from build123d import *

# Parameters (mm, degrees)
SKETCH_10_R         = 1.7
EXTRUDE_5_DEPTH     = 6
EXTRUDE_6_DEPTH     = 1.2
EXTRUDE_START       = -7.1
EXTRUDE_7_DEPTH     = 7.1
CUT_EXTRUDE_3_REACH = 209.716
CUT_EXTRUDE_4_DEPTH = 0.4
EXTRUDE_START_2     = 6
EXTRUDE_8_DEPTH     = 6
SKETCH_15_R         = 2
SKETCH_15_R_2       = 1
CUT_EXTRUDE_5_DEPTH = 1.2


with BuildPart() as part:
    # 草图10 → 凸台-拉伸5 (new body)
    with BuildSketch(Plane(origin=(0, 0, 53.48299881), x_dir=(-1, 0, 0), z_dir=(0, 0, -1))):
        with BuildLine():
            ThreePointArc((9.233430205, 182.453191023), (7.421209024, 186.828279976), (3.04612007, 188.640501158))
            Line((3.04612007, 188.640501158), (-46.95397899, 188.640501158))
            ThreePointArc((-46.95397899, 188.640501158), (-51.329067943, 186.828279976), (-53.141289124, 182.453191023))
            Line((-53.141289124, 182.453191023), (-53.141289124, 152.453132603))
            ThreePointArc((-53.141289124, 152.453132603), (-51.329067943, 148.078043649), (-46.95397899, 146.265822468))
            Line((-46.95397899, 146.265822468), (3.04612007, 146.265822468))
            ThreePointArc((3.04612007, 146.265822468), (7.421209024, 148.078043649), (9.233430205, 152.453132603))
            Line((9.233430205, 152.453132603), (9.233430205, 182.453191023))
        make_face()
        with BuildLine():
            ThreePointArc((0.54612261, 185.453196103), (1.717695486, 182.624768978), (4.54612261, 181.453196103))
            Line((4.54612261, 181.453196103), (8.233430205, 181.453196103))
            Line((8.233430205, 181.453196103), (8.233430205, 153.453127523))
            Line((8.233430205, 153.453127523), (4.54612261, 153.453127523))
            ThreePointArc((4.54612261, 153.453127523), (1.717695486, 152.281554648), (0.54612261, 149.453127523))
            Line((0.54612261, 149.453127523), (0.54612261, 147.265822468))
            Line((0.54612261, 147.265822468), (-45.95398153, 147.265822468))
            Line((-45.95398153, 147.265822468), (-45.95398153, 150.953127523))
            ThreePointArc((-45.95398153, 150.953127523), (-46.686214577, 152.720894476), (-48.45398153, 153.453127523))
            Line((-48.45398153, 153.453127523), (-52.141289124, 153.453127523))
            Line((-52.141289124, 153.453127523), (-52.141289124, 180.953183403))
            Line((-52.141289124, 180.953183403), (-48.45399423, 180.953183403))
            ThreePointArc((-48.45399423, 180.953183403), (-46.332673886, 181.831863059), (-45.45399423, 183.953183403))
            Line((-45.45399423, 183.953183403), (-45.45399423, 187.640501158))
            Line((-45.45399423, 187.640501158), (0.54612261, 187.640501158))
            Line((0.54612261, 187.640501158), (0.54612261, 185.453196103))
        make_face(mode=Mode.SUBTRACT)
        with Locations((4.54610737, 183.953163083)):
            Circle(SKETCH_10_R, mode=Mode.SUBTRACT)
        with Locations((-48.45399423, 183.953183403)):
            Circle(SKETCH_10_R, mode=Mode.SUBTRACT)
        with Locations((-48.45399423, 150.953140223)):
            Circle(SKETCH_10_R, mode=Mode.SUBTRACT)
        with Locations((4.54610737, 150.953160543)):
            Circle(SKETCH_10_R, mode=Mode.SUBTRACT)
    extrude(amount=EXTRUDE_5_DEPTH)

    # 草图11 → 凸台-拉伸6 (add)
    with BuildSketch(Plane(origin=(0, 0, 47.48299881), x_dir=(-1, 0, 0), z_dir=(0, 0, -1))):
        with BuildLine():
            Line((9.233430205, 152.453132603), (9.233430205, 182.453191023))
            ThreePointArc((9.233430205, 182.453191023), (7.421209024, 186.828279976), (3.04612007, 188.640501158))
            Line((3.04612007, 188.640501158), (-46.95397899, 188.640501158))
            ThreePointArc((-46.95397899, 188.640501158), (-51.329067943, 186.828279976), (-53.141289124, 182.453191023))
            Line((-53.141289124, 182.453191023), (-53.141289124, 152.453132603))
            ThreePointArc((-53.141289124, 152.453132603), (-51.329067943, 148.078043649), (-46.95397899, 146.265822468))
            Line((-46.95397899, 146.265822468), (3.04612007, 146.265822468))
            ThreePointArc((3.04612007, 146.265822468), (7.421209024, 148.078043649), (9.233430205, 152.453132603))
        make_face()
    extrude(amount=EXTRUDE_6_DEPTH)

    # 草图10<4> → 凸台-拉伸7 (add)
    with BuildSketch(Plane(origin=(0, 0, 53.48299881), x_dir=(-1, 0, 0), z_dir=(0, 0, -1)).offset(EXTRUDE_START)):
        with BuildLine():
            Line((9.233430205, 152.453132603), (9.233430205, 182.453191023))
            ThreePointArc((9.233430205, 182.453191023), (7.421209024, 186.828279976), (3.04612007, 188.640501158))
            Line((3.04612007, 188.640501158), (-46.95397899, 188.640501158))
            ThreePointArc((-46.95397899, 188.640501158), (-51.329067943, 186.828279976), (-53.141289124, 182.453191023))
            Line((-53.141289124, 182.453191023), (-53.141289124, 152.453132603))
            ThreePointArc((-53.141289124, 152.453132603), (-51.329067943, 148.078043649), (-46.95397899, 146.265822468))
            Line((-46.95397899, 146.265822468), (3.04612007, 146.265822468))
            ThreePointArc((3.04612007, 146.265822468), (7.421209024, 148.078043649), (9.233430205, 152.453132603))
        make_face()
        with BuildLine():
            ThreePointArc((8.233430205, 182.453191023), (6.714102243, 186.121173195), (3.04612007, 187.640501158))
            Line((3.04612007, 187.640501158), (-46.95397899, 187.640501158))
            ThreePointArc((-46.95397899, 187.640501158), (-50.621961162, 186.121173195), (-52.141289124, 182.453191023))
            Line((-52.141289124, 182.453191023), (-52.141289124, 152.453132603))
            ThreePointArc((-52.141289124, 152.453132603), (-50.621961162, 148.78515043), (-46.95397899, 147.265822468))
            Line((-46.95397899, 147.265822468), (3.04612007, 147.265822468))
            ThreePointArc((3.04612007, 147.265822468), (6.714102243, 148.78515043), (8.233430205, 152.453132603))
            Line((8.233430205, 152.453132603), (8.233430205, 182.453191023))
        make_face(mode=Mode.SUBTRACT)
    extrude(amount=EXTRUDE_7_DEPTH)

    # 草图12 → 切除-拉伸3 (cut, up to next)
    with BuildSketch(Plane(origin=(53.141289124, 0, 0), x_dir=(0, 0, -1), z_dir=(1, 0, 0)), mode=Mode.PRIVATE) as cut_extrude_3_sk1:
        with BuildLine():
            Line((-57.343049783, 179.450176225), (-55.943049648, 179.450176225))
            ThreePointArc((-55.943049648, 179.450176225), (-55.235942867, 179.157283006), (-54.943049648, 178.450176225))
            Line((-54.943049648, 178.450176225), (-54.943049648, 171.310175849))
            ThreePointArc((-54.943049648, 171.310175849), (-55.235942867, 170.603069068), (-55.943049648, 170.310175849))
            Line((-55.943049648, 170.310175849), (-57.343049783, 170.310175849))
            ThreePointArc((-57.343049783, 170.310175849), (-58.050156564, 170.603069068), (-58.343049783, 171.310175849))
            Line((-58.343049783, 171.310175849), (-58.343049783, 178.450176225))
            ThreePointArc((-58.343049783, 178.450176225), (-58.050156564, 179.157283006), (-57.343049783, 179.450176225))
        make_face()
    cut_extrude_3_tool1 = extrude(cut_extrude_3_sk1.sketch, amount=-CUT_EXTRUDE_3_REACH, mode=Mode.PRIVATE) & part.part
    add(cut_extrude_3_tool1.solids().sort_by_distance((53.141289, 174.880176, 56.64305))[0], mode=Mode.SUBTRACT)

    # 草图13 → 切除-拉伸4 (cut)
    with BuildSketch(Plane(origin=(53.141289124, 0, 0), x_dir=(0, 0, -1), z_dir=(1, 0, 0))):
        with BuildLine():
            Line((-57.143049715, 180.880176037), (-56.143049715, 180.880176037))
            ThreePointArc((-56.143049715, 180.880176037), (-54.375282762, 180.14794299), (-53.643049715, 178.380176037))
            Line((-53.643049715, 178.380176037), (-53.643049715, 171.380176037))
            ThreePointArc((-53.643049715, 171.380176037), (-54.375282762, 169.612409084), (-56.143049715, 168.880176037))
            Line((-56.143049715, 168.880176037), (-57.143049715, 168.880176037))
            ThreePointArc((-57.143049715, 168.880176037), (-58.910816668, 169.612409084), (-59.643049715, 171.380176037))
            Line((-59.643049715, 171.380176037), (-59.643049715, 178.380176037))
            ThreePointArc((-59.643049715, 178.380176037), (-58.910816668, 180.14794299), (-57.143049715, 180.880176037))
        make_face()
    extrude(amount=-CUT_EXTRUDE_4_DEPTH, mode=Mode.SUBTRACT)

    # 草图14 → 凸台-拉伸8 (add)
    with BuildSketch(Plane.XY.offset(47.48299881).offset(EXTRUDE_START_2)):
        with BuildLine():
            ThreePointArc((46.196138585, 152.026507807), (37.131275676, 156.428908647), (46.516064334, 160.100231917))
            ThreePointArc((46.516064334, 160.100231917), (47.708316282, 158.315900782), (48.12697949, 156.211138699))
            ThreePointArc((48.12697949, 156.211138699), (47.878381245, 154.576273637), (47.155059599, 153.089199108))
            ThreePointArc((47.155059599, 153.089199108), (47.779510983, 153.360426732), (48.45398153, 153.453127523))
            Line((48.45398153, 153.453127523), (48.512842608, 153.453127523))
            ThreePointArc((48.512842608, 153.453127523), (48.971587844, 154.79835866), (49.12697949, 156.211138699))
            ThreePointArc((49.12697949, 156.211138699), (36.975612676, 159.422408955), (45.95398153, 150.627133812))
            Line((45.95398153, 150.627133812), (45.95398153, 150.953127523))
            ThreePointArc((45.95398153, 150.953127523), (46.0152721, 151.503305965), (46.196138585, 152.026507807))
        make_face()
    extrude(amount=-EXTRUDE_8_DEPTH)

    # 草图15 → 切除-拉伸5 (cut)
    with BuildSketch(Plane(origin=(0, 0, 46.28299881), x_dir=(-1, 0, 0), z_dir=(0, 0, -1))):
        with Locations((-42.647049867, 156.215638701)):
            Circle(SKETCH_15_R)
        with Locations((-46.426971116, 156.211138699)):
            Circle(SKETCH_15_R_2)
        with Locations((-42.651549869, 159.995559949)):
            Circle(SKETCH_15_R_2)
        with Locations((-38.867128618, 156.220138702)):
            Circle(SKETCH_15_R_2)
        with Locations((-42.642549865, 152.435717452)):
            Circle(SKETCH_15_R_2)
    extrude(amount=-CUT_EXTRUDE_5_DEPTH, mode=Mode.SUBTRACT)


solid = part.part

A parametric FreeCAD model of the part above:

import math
import FreeCAD as App
import Part
import Sketcher

doc = App.newDocument("Part")
body = doc.addObject("PartDesign::Body", "Body")

# Sketch on XY plane
sketch1 = body.newObject("Sketcher::SketchObject", "Sketch")
sketch1.AttachmentSupport = (doc.getObject("XY_Plane"), [""])
sketch1.MapMode = "FlatFace"
sketch1.AttachmentOffset = App.Placement(App.Vector(0, 0, 53.482999), App.Rotation())
sketch1.addGeometry(Part.ArcOfCircle(Part.Circle(App.Vector(-3, 182.5, 0), App.Vector(0, 0, 1), 6.2), math.radians(90), math.radians(180)), False)
sketch1.addGeometry(Part.LineSegment(App.Vector(-3, 188.6, 0), App.Vector(47, 188.6, 0)), False)
sketch1.addGeometry(Part.ArcOfCircle(Part.Circle(App.Vector(47, 182.5, 0), App.Vector(0, 0, 1), 6.2), math.radians(0), math.radians(90)), False)
sketch1.addGeometry(Part.LineSegment(App.Vector(53.1, 182.5, 0), App.Vector(53.1, 152.5, 0)), False)
sketch1.addGeometry(Part.ArcOfCircle(Part.Circle(App.Vector(47, 152.5, 0), App.Vector(0, 0, 1), 6.2), math.radians(-90), math.radians(0)), False)
sketch1.addGeometry(Part.LineSegment(App.Vector(47, 146.3, 0), App.Vector(-3, 146.3, 0)), False)
sketch1.addGeometry(Part.ArcOfCircle(Part.Circle(App.Vector(-3, 152.5, 0), App.Vector(0, 0, 1), 6.2), math.radians(180), math.radians(270)), False)
sketch1.addGeometry(Part.LineSegment(App.Vector(-9.2, 152.5, 0), App.Vector(-9.2, 182.5, 0)), False)
sketch1.addGeometry(Part.Circle(App.Vector(48.5, 151, 0), App.Vector(0, 0, 1), 1.7), False)
sketch1.addGeometry(Part.Circle(App.Vector(-4.5, 151, 0), App.Vector(0, 0, 1), 1.7), False)
sketch1.addGeometry(Part.Circle(App.Vector(48.5, 184, 0), App.Vector(0, 0, 1), 1.7), False)
sketch1.addGeometry(Part.LineSegment(App.Vector(-0.5, 187.6, 0), App.Vector(-0.5, 185.5, 0)), False)
sketch1.addGeometry(Part.ArcOfCircle(Part.Circle(App.Vector(-4.5, 185.5, 0), App.Vector(0, 0, 1), 4), math.radians(-90), math.radians(0)), False)
sketch1.addGeometry(Part.LineSegment(App.Vector(-4.5, 181.5, 0), App.Vector(-8.2, 181.5, 0)), False)
sketch1.addGeometry(Part.LineSegment(App.Vector(-8.2, 181.5, 0), App.Vector(-8.2, 153.5, 0)), False)
sketch1.addGeometry(Part.LineSegment(App.Vector(-8.2, 153.5, 0), App.Vector(-4.5, 153.5, 0)), False)
sketch1.addGeometry(Part.ArcOfCircle(Part.Circle(App.Vector(-4.5, 149.5, 0), App.Vector(0, 0, 1), 4), math.radians(0), math.radians(90)), False)
sketch1.addGeometry(Part.LineSegment(App.Vector(-0.5, 149.5, 0), App.Vector(-0.5, 147.3, 0)), False)
sketch1.addGeometry(Part.LineSegment(App.Vector(-0.5, 147.3, 0), App.Vector(46, 147.3, 0)), False)
sketch1.addGeometry(Part.LineSegment(App.Vector(46, 147.3, 0), App.Vector(46, 151, 0)), False)
sketch1.addGeometry(Part.ArcOfCircle(Part.Circle(App.Vector(48.5, 151, 0), App.Vector(0, 0, 1), 2.5), math.radians(90), math.radians(180)), False)
sketch1.addGeometry(Part.LineSegment(App.Vector(48.5, 153.5, 0), App.Vector(52.1, 153.5, 0)), False)
sketch1.addGeometry(Part.LineSegment(App.Vector(52.1, 153.5, 0), App.Vector(52.1, 181, 0)), False)
sketch1.addGeometry(Part.LineSegment(App.Vector(52.1, 181, 0), App.Vector(48.5, 181, 0)), False)
sketch1.addGeometry(Part.ArcOfCircle(Part.Circle(App.Vector(48.5, 184, 0), App.Vector(0, 0, 1), 3), math.radians(180), math.radians(270)), False)
sketch1.addGeometry(Part.LineSegment(App.Vector(45.5, 184, 0), App.Vector(45.5, 187.6, 0)), False)
sketch1.addGeometry(Part.LineSegment(App.Vector(45.5, 187.6, 0), App.Vector(-0.5, 187.6, 0)), False)
sketch1.addGeometry(Part.Circle(App.Vector(-4.5, 184, 0), App.Vector(0, 0, 1), 1.7), False)
sketch1.addConstraint(Sketcher.Constraint("Tangent", 0, 1, 1, 1))
sketch1.addConstraint(Sketcher.Constraint("Tangent", 1, 2, 2, 2))
sketch1.addConstraint(Sketcher.Constraint("Tangent", 2, 1, 3, 1))
sketch1.addConstraint(Sketcher.Constraint("Tangent", 3, 2, 4, 2))
sketch1.addConstraint(Sketcher.Constraint("Tangent", 4, 1, 5, 1))
sketch1.addConstraint(Sketcher.Constraint("Tangent", 5, 2, 6, 2))
sketch1.addConstraint(Sketcher.Constraint("Tangent", 6, 1, 7, 1))
sketch1.addConstraint(Sketcher.Constraint("Tangent", 7, 2, 0, 2))
sketch1.addConstraint(Sketcher.Constraint("Tangent", 11, 2, 12, 2))
sketch1.addConstraint(Sketcher.Constraint("Tangent", 12, 1, 13, 1))
sketch1.addConstraint(Sketcher.Constraint("Coincident", 13, 2, 14, 1))
sketch1.addConstraint(Sketcher.Constraint("Coincident", 14, 2, 15, 1))
sketch1.addConstraint(Sketcher.Constraint("Tangent", 15, 2, 16, 2))
sketch1.addConstraint(Sketcher.Constraint("Tangent", 16, 1, 17, 1))
sketch1.addConstraint(Sketcher.Constraint("Coincident", 17, 2, 18, 1))
sketch1.addConstraint(Sketcher.Constraint("Coincident", 18, 2, 19, 1))
sketch1.addConstraint(Sketcher.Constraint("Tangent", 19, 2, 20, 2))
sketch1.addConstraint(Sketcher.Constraint("Tangent", 20, 1, 21, 1))
sketch1.addConstraint(Sketcher.Constraint("Coincident", 21, 2, 22, 1))
sketch1.addConstraint(Sketcher.Constraint("Coincident", 22, 2, 23, 1))
sketch1.addConstraint(Sketcher.Constraint("Tangent", 23, 2, 24, 2))
sketch1.addConstraint(Sketcher.Constraint("Tangent", 24, 1, 25, 1))
sketch1.addConstraint(Sketcher.Constraint("Coincident", 25, 2, 26, 1))
sketch1.addConstraint(Sketcher.Constraint("Coincident", 26, 2, 11, 1))
sketch1.addConstraint(Sketcher.Constraint("Horizontal", 1))
sketch1.addConstraint(Sketcher.Constraint("Vertical", 3))
sketch1.addConstraint(Sketcher.Constraint("Horizontal", 5))
sketch1.addConstraint(Sketcher.Constraint("Vertical", 7))
sketch1.addConstraint(Sketcher.Constraint("Vertical", 11))
sketch1.addConstraint(Sketcher.Constraint("Horizontal", 13))
sketch1.addConstraint(Sketcher.Constraint("Vertical", 14))
sketch1.addConstraint(Sketcher.Constraint("Horizontal", 15))
sketch1.addConstraint(Sketcher.Constraint("Vertical", 17))
sketch1.addConstraint(Sketcher.Constraint("Horizontal", 18))
sketch1.addConstraint(Sketcher.Constraint("Vertical", 19))
sketch1.addConstraint(Sketcher.Constraint("Horizontal", 21))
sketch1.addConstraint(Sketcher.Constraint("Vertical", 22))
sketch1.addConstraint(Sketcher.Constraint("Horizontal", 23))
sketch1.addConstraint(Sketcher.Constraint("Vertical", 25))
sketch1.addConstraint(Sketcher.Constraint("Horizontal", 26))
sketch1.addConstraint(Sketcher.Constraint("Coincident", 24, 3, 10, 3))
sketch1.addConstraint(Sketcher.Constraint("Equal", 0, 2))
sketch1.addConstraint(Sketcher.Constraint("Equal", 2, 4))
sketch1.addConstraint(Sketcher.Constraint("Equal", 4, 6))
sketch1.addConstraint(Sketcher.Constraint("Equal", 8, 9))
sketch1.addConstraint(Sketcher.Constraint("Equal", 9, 10))
sketch1.addConstraint(Sketcher.Constraint("Equal", 12, 16))
sketch1.addConstraint(Sketcher.Constraint("Equal", 10, 27))
sketch1.addConstraint(Sketcher.Constraint("Horizontal", 15, 2, 20, 1))
sketch1.addConstraint(Sketcher.Constraint("Vertical", 8, 3, 10, 3))
sketch1.addConstraint(Sketcher.Constraint("Vertical", 12, 3, 16, 3))
sketch1.addConstraint(Sketcher.Constraint("Vertical", 9, 3, 27, 3))
sketch1.addConstraint(Sketcher.Constraint("Equal", 15, 21))
sketch1.addConstraint(Sketcher.Constraint("Equal", 11, 17))
sketch1.addConstraint(Sketcher.Constraint("Radius", 12, 4.0))
sketch1.addConstraint(Sketcher.Constraint("Radius", 24, 3.0))
sketch1.addConstraint(Sketcher.Constraint("Diameter", 8, 3.4))
sketch1.addConstraint(Sketcher.Constraint("Radius", 20, 2.5))
sketch1.addConstraint(Sketcher.Constraint("DistanceX", 7, 2, 13, 2, 1.0))
sketch1.addConstraint(Sketcher.Constraint("DistanceY", 5, 2, 17, 2, 1.0))
sketch1.addConstraint(Sketcher.Constraint("DistanceX", 21, 2, 3, 2, 1.0))
sketch1.addConstraint(Sketcher.Constraint("DistanceY", 25, 2, 1, 2, 1.0))
sketch1.addConstraint(Sketcher.Constraint("Radius", 0, 6.18731))
sketch1.addConstraint(Sketcher.Constraint("DistanceX", 1, 1, 1, 2, 50.000099))
sketch1.addConstraint(Sketcher.Constraint("DistanceY", 3, 2, 3, 1, 30.000058))
sketch1.addConstraint(Sketcher.Constraint("DistanceY", 14, 2, 14, 1, 28.000069))
sketch1.addConstraint(Sketcher.Constraint("DistanceY", -1, 1, 0, 1, 188.640501))
sketch1.addConstraint(Sketcher.Constraint("DistanceX", 9, 3, 8, 3, 53.000102))
sketch1.addConstraint(Sketcher.Constraint("DistanceX", 12, 3, 2, 3, 51.500102))
sketch1.addConstraint(Sketcher.Constraint("DistanceX", 23, 2, 23, 1, 3.687295))
sketch1.addConstraint(Sketcher.Constraint("DistanceY", 22, 1, 22, 2, 27.500056))
sketch1.addConstraint(Sketcher.Constraint("DistanceX", 0, 3, -1, 1, 3.04612))
sketch1.addConstraint(Sketcher.Constraint("DistanceY", -1, 1, 8, 3, 150.95314))
sketch1.addConstraint(Sketcher.Constraint("DistanceY", -1, 1, 9, 3, 150.953161))
sketch1.addConstraint(Sketcher.Constraint("DistanceY", 6, 3, 27, 3, 31.50003))
pad1 = body.newObject("PartDesign::Pad", "Pad")
pad1.Profile = sketch1
pad1.Length = 6
pad1.Reversed = True

# Sketch on XY plane
sketch2 = body.newObject("Sketcher::SketchObject", "Sketch001")
sketch2.AttachmentSupport = (doc.getObject("XY_Plane"), [""])
sketch2.MapMode = "FlatFace"
sketch2.AttachmentOffset = App.Placement(App.Vector(0, 0, 47.482999), App.Rotation())
sketch2.addGeometry(Part.LineSegment(App.Vector(-9, 152, 0), App.Vector(-9, 182, 0)), False)
sketch2.addGeometry(Part.ArcOfCircle(Part.Circle(App.Vector(-3, 182, 0), App.Vector(0, 0, 1), 6), math.radians(90), math.radians(180)), False)
sketch2.addGeometry(Part.LineSegment(App.Vector(-3, 189, 0), App.Vector(47, 189, 0)), False)
sketch2.addGeometry(Part.ArcOfCircle(Part.Circle(App.Vector(47, 182, 0), App.Vector(0, 0, 1), 6), math.radians(0), math.radians(90)), False)
sketch2.addGeometry(Part.LineSegment(App.Vector(53, 182, 0), App.Vector(53, 152, 0)), False)
sketch2.addGeometry(Part.ArcOfCircle(Part.Circle(App.Vector(47, 152, 0), App.Vector(0, 0, 1), 6), math.radians(-90), math.radians(0)), False)
sketch2.addGeometry(Part.LineSegment(App.Vector(47, 146, 0), App.Vector(-3, 146, 0)), False)
sketch2.addGeometry(Part.ArcOfCircle(Part.Circle(App.Vector(-3, 152, 0), App.Vector(0, 0, 1), 6), math.radians(180), math.radians(270)), False)
sketch2.addConstraint(Sketcher.Constraint("Tangent", 0, 2, 1, 2))
sketch2.addConstraint(Sketcher.Constraint("Tangent", 1, 1, 2, 1))
sketch2.addConstraint(Sketcher.Constraint("Tangent", 2, 2, 3, 2))
sketch2.addConstraint(Sketcher.Constraint("Tangent", 3, 1, 4, 1))
sketch2.addConstraint(Sketcher.Constraint("Tangent", 4, 2, 5, 2))
sketch2.addConstraint(Sketcher.Constraint("Tangent", 5, 1, 6, 1))
sketch2.addConstraint(Sketcher.Constraint("Tangent", 6, 2, 7, 2))
sketch2.addConstraint(Sketcher.Constraint("Tangent", 7, 1, 0, 1))
sketch2.addConstraint(Sketcher.Constraint("Vertical", 0))
sketch2.addConstraint(Sketcher.Constraint("Horizontal", 2))
sketch2.addConstraint(Sketcher.Constraint("Vertical", 4))
sketch2.addConstraint(Sketcher.Constraint("Horizontal", 6))
sketch2.addConstraint(Sketcher.Constraint("Equal", 1, 3))
sketch2.addConstraint(Sketcher.Constraint("Equal", 3, 5))
sketch2.addConstraint(Sketcher.Constraint("Equal", 5, 7))
sketch2.addConstraint(Sketcher.Constraint("Radius", 1, 6.18731))
sketch2.addConstraint(Sketcher.Constraint("DistanceX", 2, 1, 2, 2, 50.000099))
sketch2.addConstraint(Sketcher.Constraint("DistanceY", 0, 1, 0, 2, 30.000058))
sketch2.addConstraint(Sketcher.Constraint("DistanceY", -1, 1, 1, 1, 188.640501))
sketch2.addConstraint(Sketcher.Constraint("DistanceX", 1, 3, -1, 1, 3.04612))
pad2 = body.newObject("PartDesign::Pad", "Pad001")
pad2.Profile = sketch2
pad2.Length = 1.2
pad2.Reversed = True

# Sketch on XY plane
sketch3 = body.newObject("Sketcher::SketchObject", "Sketch002")
sketch3.AttachmentSupport = (doc.getObject("XY_Plane"), [""])
sketch3.MapMode = "FlatFace"
sketch3.AttachmentOffset = App.Placement(App.Vector(0, 0, 60.582999), App.Rotation())
sketch3.addGeometry(Part.LineSegment(App.Vector(-9, 152, 0), App.Vector(-9, 182, 0)), False)
sketch3.addGeometry(Part.ArcOfCircle(Part.Circle(App.Vector(-3, 182, 0), App.Vector(0, 0, 1), 6), math.radians(90), math.radians(180)), False)
sketch3.addGeometry(Part.LineSegment(App.Vector(-3, 189, 0), App.Vector(47, 189, 0)), False)
sketch3.addGeometry(Part.ArcOfCircle(Part.Circle(App.Vector(47, 182, 0), App.Vector(0, 0, 1), 6), math.radians(0), math.radians(90)), False)
sketch3.addGeometry(Part.LineSegment(App.Vector(53, 182, 0), App.Vector(53, 152, 0)), False)
sketch3.addGeometry(Part.ArcOfCircle(Part.Circle(App.Vector(47, 152, 0), App.Vector(0, 0, 1), 6), math.radians(-90), math.radians(0)), False)
sketch3.addGeometry(Part.LineSegment(App.Vector(47, 146, 0), App.Vector(-3, 146, 0)), False)
sketch3.addGeometry(Part.ArcOfCircle(Part.Circle(App.Vector(-3, 152, 0), App.Vector(0, 0, 1), 6), math.radians(180), math.radians(270)), False)
sketch3.addGeometry(Part.ArcOfCircle(Part.Circle(App.Vector(-3, 182, 0), App.Vector(0, 0, 1), 5), math.radians(90), math.radians(180)), False)
sketch3.addGeometry(Part.LineSegment(App.Vector(-8, 182, 0), App.Vector(-8, 152, 0)), False)
sketch3.addGeometry(Part.ArcOfCircle(Part.Circle(App.Vector(-3, 152, 0), App.Vector(0, 0, 1), 5), math.radians(180), math.radians(270)), False)
sketch3.addGeometry(Part.LineSegment(App.Vector(-3, 147, 0), App.Vector(47, 147, 0)), False)
sketch3.addGeometry(Part.ArcOfCircle(Part.Circle(App.Vector(47, 152, 0), App.Vector(0, 0, 1), 5), math.radians(-90), math.radians(0)), False)
sketch3.addGeometry(Part.LineSegment(App.Vector(52, 152, 0), App.Vector(52, 182, 0)), False)
sketch3.addGeometry(Part.ArcOfCircle(Part.Circle(App.Vector(47, 182, 0), App.Vector(0, 0, 1), 5), math.radians(0), math.radians(90)), False)
sketch3.addGeometry(Part.LineSegment(App.Vector(47, 188, 0), App.Vector(-3, 188, 0)), False)
sketch3.addConstraint(Sketcher.Constraint("Tangent", 0, 2, 1, 2))
sketch3.addConstraint(Sketcher.Constraint("Tangent", 1, 1, 2, 1))
sketch3.addConstraint(Sketcher.Constraint("Tangent", 2, 2, 3, 2))
sketch3.addConstraint(Sketcher.Constraint("Tangent", 3, 1, 4, 1))
sketch3.addConstraint(Sketcher.Constraint("Tangent", 4, 2, 5, 2))
sketch3.addConstraint(Sketcher.Constraint("Tangent", 5, 1, 6, 1))
sketch3.addConstraint(Sketcher.Constraint("Tangent", 6, 2, 7, 2))
sketch3.addConstraint(Sketcher.Constraint("Tangent", 7, 1, 0, 1))
sketch3.addConstraint(Sketcher.Constraint("Tangent", 8, 2, 9, 1))
sketch3.addConstraint(Sketcher.Constraint("Tangent", 9, 2, 10, 1))
sketch3.addConstraint(Sketcher.Constraint("Tangent", 10, 2, 11, 1))
sketch3.addConstraint(Sketcher.Constraint("Tangent", 11, 2, 12, 1))
sketch3.addConstraint(Sketcher.Constraint("Tangent", 12, 2, 13, 1))
sketch3.addConstraint(Sketcher.Constraint("Tangent", 13, 2, 14, 1))
sketch3.addConstraint(Sketcher.Constraint("Tangent", 14, 2, 15, 1))
sketch3.addConstraint(Sketcher.Constraint("Tangent", 15, 2, 8, 1))
sketch3.addConstraint(Sketcher.Constraint("Vertical", 0))
sketch3.addConstraint(Sketcher.Constraint("Horizontal", 2))
sketch3.addConstraint(Sketcher.Constraint("Vertical", 4))
sketch3.addConstraint(Sketcher.Constraint("Horizontal", 6))
sketch3.addConstraint(Sketcher.Constraint("Vertical", 9))
sketch3.addConstraint(Sketcher.Constraint("Horizontal", 11))
sketch3.addConstraint(Sketcher.Constraint("Vertical", 13))
sketch3.addConstraint(Sketcher.Constraint("Horizontal", 15))
sketch3.addConstraint(Sketcher.Constraint("Coincident", 8, 3, 1, 3))
sketch3.addConstraint(Sketcher.Constraint("Coincident", 10, 3, 7, 3))
sketch3.addConstraint(Sketcher.Constraint("Coincident", 12, 3, 5, 3))
sketch3.addConstraint(Sketcher.Constraint("Equal", 1, 3))
sketch3.addConstraint(Sketcher.Constraint("Equal", 3, 5))
sketch3.addConstraint(Sketcher.Constraint("Equal", 5, 7))
sketch3.addConstraint(Sketcher.Constraint("Equal", 12, 14))
sketch3.addConstraint(Sketcher.Constraint("DistanceX", 0, 2, 8, 2, 1.0))
sketch3.addConstraint(Sketcher.Constraint("Radius", 1, 6.18731))
sketch3.addConstraint(Sketcher.Constraint("DistanceX", 2, 1, 2, 2, 50.000099))
sketch3.addConstraint(Sketcher.Constraint("DistanceY", 0, 1, 0, 2, 30.000058))
sketch3.addConstraint(Sketcher.Constraint("DistanceY", -1, 1, 1, 1, 188.640501))
sketch3.addConstraint(Sketcher.Constraint("DistanceX", 1, 3, -1, 1, 3.04612))
pad3 = body.newObject("PartDesign::Pad", "Pad002")
pad3.Profile = sketch3
pad3.Length = 7.1
pad3.Reversed = True

# Sketch on YZ plane
sketch4 = body.newObject("Sketcher::SketchObject", "Sketch003")
sketch4.AttachmentSupport = (doc.getObject("YZ_Plane"), [""])
sketch4.MapMode = "FlatFace"
sketch4.AttachmentOffset = App.Placement(App.Vector(0, 0, 53.141289), App.Rotation())
sketch4.addGeometry(Part.LineSegment(App.Vector(179.5, 55.9, 0), App.Vector(179.5, 57.3, 0)), False)
sketch4.addGeometry(Part.ArcOfCircle(Part.Circle(App.Vector(178.5, 57.3, 0), App.Vector(0, 0, 1), 1), math.radians(0), math.radians(90)), False)
sketch4.addGeometry(Part.LineSegment(App.Vector(178.5, 58.3, 0), App.Vector(171.3, 58.3, 0)), False)
sketch4.addGeometry(Part.ArcOfCircle(Part.Circle(App.Vector(171.3, 57.3, 0), App.Vector(0, 0, 1), 1), math.radians(90), math.radians(180)), False)
sketch4.addGeometry(Part.LineSegment(App.Vector(170.3, 57.3, 0), App.Vector(170.3, 55.9, 0)), False)
sketch4.addGeometry(Part.ArcOfCircle(Part.Circle(App.Vector(171.3, 55.9, 0), App.Vector(0, 0, 1), 1), math.radians(-180), math.radians(-90)), False)
sketch4.addGeometry(Part.LineSegment(App.Vector(171.3, 54.9, 0), App.Vector(178.5, 54.9, 0)), False)
sketch4.addGeometry(Part.ArcOfCircle(Part.Circle(App.Vector(178.5, 55.9, 0), App.Vector(0, 0, 1), 1), math.radians(-90), math.radians(0)), False)
sketch4.addConstraint(Sketcher.Constraint("Tangent", 0, 2, 1, 1))
sketch4.addConstraint(Sketcher.Constraint("Tangent", 1, 2, 2, 1))
sketch4.addConstraint(Sketcher.Constraint("Tangent", 2, 2, 3, 1))
sketch4.addConstraint(Sketcher.Constraint("Tangent", 3, 2, 4, 1))
sketch4.addConstraint(Sketcher.Constraint("Tangent", 4, 2, 5, 1))
sketch4.addConstraint(Sketcher.Constraint("Tangent", 5, 2, 6, 1))
sketch4.addConstraint(Sketcher.Constraint("Tangent", 6, 2, 7, 1))
sketch4.addConstraint(Sketcher.Constraint("Tangent", 7, 2, 0, 1))
sketch4.addConstraint(Sketcher.Constraint("Vertical", 0))
sketch4.addConstraint(Sketcher.Constraint("Horizontal", 2))
sketch4.addConstraint(Sketcher.Constraint("Vertical", 4))
sketch4.addConstraint(Sketcher.Constraint("Horizontal", 6))
sketch4.addConstraint(Sketcher.Constraint("Equal", 1, 3))
sketch4.addConstraint(Sketcher.Constraint("Equal", 3, 5))
sketch4.addConstraint(Sketcher.Constraint("Equal", 5, 7))
sketch4.addConstraint(Sketcher.Constraint("Radius", 1, 1.0))
sketch4.addConstraint(Sketcher.Constraint("DistanceY", 0, 1, 0, 2, 1.4))
sketch4.addConstraint(Sketcher.Constraint("DistanceX", 2, 2, 2, 1, 7.14))
sketch4.addConstraint(Sketcher.Constraint("DistanceY", -1, 1, 1, 3, 57.34305))
sketch4.addConstraint(Sketcher.Constraint("DistanceX", -1, 1, 1, 3, 178.450176))
pocket1 = body.newObject("PartDesign::Pocket", "Pocket")
pocket1.Profile = sketch4
pocket1.Type = "UpToFirst"

# Sketch on YZ plane
sketch5 = body.newObject("Sketcher::SketchObject", "Sketch004")
sketch5.AttachmentSupport = (doc.getObject("YZ_Plane"), [""])
sketch5.MapMode = "FlatFace"
sketch5.AttachmentOffset = App.Placement(App.Vector(0, 0, 53.141289), App.Rotation())
sketch5.addGeometry(Part.LineSegment(App.Vector(180.9, 56.1, 0), App.Vector(180.9, 57.1, 0)), False)
sketch5.addGeometry(Part.ArcOfCircle(Part.Circle(App.Vector(178.4, 57.1, 0), App.Vector(0, 0, 1), 2.5), math.radians(0), math.radians(90)), False)
sketch5.addGeometry(Part.LineSegment(App.Vector(178.4, 59.6, 0), App.Vector(171.4, 59.6, 0)), False)
sketch5.addGeometry(Part.ArcOfCircle(Part.Circle(App.Vector(171.4, 57.1, 0), App.Vector(0, 0, 1), 2.5), math.radians(90), math.radians(180)), False)
sketch5.addGeometry(Part.LineSegment(App.Vector(168.9, 57.1, 0), App.Vector(168.9, 56.1, 0)), False)
sketch5.addGeometry(Part.ArcOfCircle(Part.Circle(App.Vector(171.4, 56.1, 0), App.Vector(0, 0, 1), 2.5), math.radians(180), math.radians(270)), False)
sketch5.addGeometry(Part.LineSegment(App.Vector(171.4, 53.6, 0), App.Vector(178.4, 53.6, 0)), False)
sketch5.addGeometry(Part.ArcOfCircle(Part.Circle(App.Vector(178.4, 56.1, 0), App.Vector(0, 0, 1), 2.5), math.radians(-90), math.radians(0)), False)
sketch5.addConstraint(Sketcher.Constraint("Tangent", 0, 2, 1, 1))
sketch5.addConstraint(Sketcher.Constraint("Tangent", 1, 2, 2, 1))
sketch5.addConstraint(Sketcher.Constraint("Tangent", 2, 2, 3, 1))
sketch5.addConstraint(Sketcher.Constraint("Tangent", 3, 2, 4, 1))
sketch5.addConstraint(Sketcher.Constraint("Tangent", 4, 2, 5, 1))
sketch5.addConstraint(Sketcher.Constraint("Tangent", 5, 2, 6, 1))
sketch5.addConstraint(Sketcher.Constraint("Tangent", 6, 2, 7, 1))
sketch5.addConstraint(Sketcher.Constraint("Tangent", 7, 2, 0, 1))
sketch5.addConstraint(Sketcher.Constraint("Vertical", 0))
sketch5.addConstraint(Sketcher.Constraint("Horizontal", 2))
sketch5.addConstraint(Sketcher.Constraint("Vertical", 4))
sketch5.addConstraint(Sketcher.Constraint("Horizontal", 6))
sketch5.addConstraint(Sketcher.Constraint("Equal", 1, 3))
sketch5.addConstraint(Sketcher.Constraint("Equal", 3, 5))
sketch5.addConstraint(Sketcher.Constraint("Equal", 5, 7))
sketch5.addConstraint(Sketcher.Constraint("Radius", 1, 2.5))
sketch5.addConstraint(Sketcher.Constraint("DistanceX", 2, 2, 2, 1, 7.0))
sketch5.addConstraint(Sketcher.Constraint("DistanceY", 0, 1, 0, 2, 1.0))
sketch5.addConstraint(Sketcher.Constraint("DistanceY", -1, 1, 1, 3, 57.14305))
sketch5.addConstraint(Sketcher.Constraint("DistanceX", -1, 1, 1, 3, 178.380176))
pocket2 = body.newObject("PartDesign::Pocket", "Pocket001")
pocket2.Profile = sketch5
pocket2.Length = 0.4

# Sketch on XY plane
sketch6 = body.newObject("Sketcher::SketchObject", "Sketch005")
sketch6.AttachmentSupport = (doc.getObject("XY_Plane"), [""])
sketch6.MapMode = "FlatFace"
sketch6.AttachmentOffset = App.Placement(App.Vector(0, 0, 53.482999), App.Rotation())
sketch6.addGeometry(Part.ArcOfCircle(Part.Circle(App.Vector(42.63, 156.21, 0), App.Vector(0, 0, 1), 5.5), math.radians(45), math.radians(310)), False)
sketch6.addGeometry(Part.ArcOfCircle(Part.Circle(App.Vector(42.63, 156.21, 0), App.Vector(0, 0, 1), 5.5), math.radians(0), math.radians(45)), False)
sketch6.addGeometry(Part.ArcOfCircle(Part.Circle(App.Vector(42.63, 156.21, 0), App.Vector(0, 0, 1), 5.5), math.radians(-35), math.radians(0)), False)
sketch6.addGeometry(Part.ArcOfCircle(Part.Circle(App.Vector(48.45, 150.95, 0), App.Vector(0, 0, 1), 2.5), math.radians(90), math.radians(121)), False)
sketch6.addGeometry(Part.LineSegment(App.Vector(48.45, 153.45, 0), App.Vector(48.51, 153.45, 0)), False)
sketch6.addGeometry(Part.ArcOfCircle(Part.Circle(App.Vector(42.63, 156.21, 0), App.Vector(0, 0, 1), 6.5), math.radians(-25), math.radians(0)), False)
sketch6.addGeometry(Part.ArcOfCircle(Part.Circle(App.Vector(42.63, 156.21, 0), App.Vector(0, 0, 1), 6.5), math.radians(0), math.radians(301)), False)
sketch6.addGeometry(Part.LineSegment(App.Vector(45.95, 150.63, 0), App.Vector(45.95, 150.95, 0)), False)
sketch6.addGeometry(Part.ArcOfCircle(Part.Circle(App.Vector(48.45, 150.95, 0), App.Vector(0, 0, 1), 2.5), math.radians(155), math.radians(180)), False)
sketch6.addConstraint(Sketcher.Constraint("Tangent", 0, 1, 1, 2))
sketch6.addConstraint(Sketcher.Constraint("Tangent", 1, 1, 2, 2))
sketch6.addConstraint(Sketcher.Constraint("Coincident", 2, 1, 3, 2))
sketch6.addConstraint(Sketcher.Constraint("Tangent", 3, 1, 4, 1))
sketch6.addConstraint(Sketcher.Constraint("Coincident", 4, 2, 5, 1))
sketch6.addConstraint(Sketcher.Constraint("Tangent", 5, 2, 6, 1))
sketch6.addConstraint(Sketcher.Constraint("Coincident", 6, 2, 7, 1))
sketch6.addConstraint(Sketcher.Constraint("Tangent", 7, 2, 8, 2))
sketch6.addConstraint(Sketcher.Constraint("Coincident", 8, 1, 0, 2))
sketch6.addConstraint(Sketcher.Constraint("Horizontal", 4))
sketch6.addConstraint(Sketcher.Constraint("Vertical", 7))
sketch6.addConstraint(Sketcher.Constraint("Coincident", 2, 3, 0, 3))
sketch6.addConstraint(Sketcher.Constraint("Coincident", 5, 3, 0, 3))
sketch6.addConstraint(Sketcher.Constraint("Coincident", 8, 3, 3, 3))
sketch6.addConstraint(Sketcher.Constraint("Equal", 5, 6))
sketch6.addConstraint(Sketcher.Constraint("Equal", 3, 8))
sketch6.addConstraint(Sketcher.Constraint("Horizontal", 6, 3, 1, 1))
sketch6.addConstraint(Sketcher.Constraint("Horizontal", 1, 1, 5, 2))
sketch6.addConstraint(Sketcher.Constraint("Radius", 3, 2.5))
sketch6.addConstraint(Sketcher.Constraint("DistanceX", 1, 1, 5, 2, 1.0))
sketch6.addConstraint(Sketcher.Constraint("Radius", 0, 5.500008))
sketch6.addConstraint(Sketcher.Constraint("DistanceX", 4, 1, 4, 2, 0.058861))
sketch6.addConstraint(Sketcher.Constraint("DistanceY", -1, 1, 2, 1, 153.089199))
sketch6.addConstraint(Sketcher.Constraint("DistanceY", 7, 1, 7, 2, 0.325994))
sketch6.addConstraint(Sketcher.Constraint("DistanceX", -1, 1, 0, 3, 42.626971))
sketch6.addConstraint(Sketcher.Constraint("DistanceY", -1, 1, 0, 1, 160.100232))
pad4 = body.newObject("PartDesign::Pad", "Pad003")
pad4.Profile = sketch6
pad4.Length = 6
pad4.Reversed = True

# Sketch on XY plane
sketch7 = body.newObject("Sketcher::SketchObject", "Sketch006")
sketch7.AttachmentSupport = (doc.getObject("XY_Plane"), [""])
sketch7.MapMode = "FlatFace"
sketch7.AttachmentOffset = App.Placement(App.Vector(0, 0, 46.282999), App.Rotation())
sketch7.addGeometry(Part.Circle(App.Vector(42.6, 156.2, 0), App.Vector(0, 0, 1), 2), False)
sketch7.addGeometry(Part.Circle(App.Vector(46.4, 156.2, 0), App.Vector(0, 0, 1), 1), False)
sketch7.addGeometry(Part.Circle(App.Vector(42.7, 160, 0), App.Vector(0, 0, 1), 1), False)
sketch7.addGeometry(Part.Circle(App.Vector(38.9, 156.2, 0), App.Vector(0, 0, 1), 1), False)
sketch7.addGeometry(Part.Circle(App.Vector(42.6, 152.4, 0), App.Vector(0, 0, 1), 1), False)
sketch7.addConstraint(Sketcher.Constraint("Equal", 1, 2))
sketch7.addConstraint(Sketcher.Constraint("Equal", 2, 3))
sketch7.addConstraint(Sketcher.Constraint("Equal", 3, 4))
sketch7.addConstraint(Sketcher.Constraint("Diameter", 0, 4.0))
sketch7.addConstraint(Sketcher.Constraint("Diameter", 1, 2.0))
sketch7.addConstraint(Sketcher.Constraint("DistanceY", 1, 3, 3, 3, 0.009))
sketch7.addConstraint(Sketcher.Constraint("DistanceX", 4, 3, 2, 3, 0.009))
sketch7.addConstraint(Sketcher.Constraint("DistanceY", 1, 3, 0, 3, 0.0045))
sketch7.addConstraint(Sketcher.Constraint("DistanceX", 0, 3, 2, 3, 0.0045))
sketch7.addConstraint(Sketcher.Constraint("DistanceX", -1, 1, 0, 3, 42.64705))
sketch7.addConstraint(Sketcher.Constraint("DistanceY", -1, 1, 0, 3, 156.215639))
sketch7.addConstraint(Sketcher.Constraint("DistanceX", -1, 1, 1, 3, 46.426971))
sketch7.addConstraint(Sketcher.Constraint("DistanceY", -1, 1, 2, 3, 159.99556))
sketch7.addConstraint(Sketcher.Constraint("DistanceX", -1, 1, 3, 3, 38.867129))
sketch7.addConstraint(Sketcher.Constraint("DistanceY", 4, 3, 0, 3, 3.779921))
pocket3 = body.newObject("PartDesign::Pocket", "Pocket002")
pocket3.Profile = sketch7
pocket3.Length = 1.2
pocket3.Reversed = True

doc.recompute()
